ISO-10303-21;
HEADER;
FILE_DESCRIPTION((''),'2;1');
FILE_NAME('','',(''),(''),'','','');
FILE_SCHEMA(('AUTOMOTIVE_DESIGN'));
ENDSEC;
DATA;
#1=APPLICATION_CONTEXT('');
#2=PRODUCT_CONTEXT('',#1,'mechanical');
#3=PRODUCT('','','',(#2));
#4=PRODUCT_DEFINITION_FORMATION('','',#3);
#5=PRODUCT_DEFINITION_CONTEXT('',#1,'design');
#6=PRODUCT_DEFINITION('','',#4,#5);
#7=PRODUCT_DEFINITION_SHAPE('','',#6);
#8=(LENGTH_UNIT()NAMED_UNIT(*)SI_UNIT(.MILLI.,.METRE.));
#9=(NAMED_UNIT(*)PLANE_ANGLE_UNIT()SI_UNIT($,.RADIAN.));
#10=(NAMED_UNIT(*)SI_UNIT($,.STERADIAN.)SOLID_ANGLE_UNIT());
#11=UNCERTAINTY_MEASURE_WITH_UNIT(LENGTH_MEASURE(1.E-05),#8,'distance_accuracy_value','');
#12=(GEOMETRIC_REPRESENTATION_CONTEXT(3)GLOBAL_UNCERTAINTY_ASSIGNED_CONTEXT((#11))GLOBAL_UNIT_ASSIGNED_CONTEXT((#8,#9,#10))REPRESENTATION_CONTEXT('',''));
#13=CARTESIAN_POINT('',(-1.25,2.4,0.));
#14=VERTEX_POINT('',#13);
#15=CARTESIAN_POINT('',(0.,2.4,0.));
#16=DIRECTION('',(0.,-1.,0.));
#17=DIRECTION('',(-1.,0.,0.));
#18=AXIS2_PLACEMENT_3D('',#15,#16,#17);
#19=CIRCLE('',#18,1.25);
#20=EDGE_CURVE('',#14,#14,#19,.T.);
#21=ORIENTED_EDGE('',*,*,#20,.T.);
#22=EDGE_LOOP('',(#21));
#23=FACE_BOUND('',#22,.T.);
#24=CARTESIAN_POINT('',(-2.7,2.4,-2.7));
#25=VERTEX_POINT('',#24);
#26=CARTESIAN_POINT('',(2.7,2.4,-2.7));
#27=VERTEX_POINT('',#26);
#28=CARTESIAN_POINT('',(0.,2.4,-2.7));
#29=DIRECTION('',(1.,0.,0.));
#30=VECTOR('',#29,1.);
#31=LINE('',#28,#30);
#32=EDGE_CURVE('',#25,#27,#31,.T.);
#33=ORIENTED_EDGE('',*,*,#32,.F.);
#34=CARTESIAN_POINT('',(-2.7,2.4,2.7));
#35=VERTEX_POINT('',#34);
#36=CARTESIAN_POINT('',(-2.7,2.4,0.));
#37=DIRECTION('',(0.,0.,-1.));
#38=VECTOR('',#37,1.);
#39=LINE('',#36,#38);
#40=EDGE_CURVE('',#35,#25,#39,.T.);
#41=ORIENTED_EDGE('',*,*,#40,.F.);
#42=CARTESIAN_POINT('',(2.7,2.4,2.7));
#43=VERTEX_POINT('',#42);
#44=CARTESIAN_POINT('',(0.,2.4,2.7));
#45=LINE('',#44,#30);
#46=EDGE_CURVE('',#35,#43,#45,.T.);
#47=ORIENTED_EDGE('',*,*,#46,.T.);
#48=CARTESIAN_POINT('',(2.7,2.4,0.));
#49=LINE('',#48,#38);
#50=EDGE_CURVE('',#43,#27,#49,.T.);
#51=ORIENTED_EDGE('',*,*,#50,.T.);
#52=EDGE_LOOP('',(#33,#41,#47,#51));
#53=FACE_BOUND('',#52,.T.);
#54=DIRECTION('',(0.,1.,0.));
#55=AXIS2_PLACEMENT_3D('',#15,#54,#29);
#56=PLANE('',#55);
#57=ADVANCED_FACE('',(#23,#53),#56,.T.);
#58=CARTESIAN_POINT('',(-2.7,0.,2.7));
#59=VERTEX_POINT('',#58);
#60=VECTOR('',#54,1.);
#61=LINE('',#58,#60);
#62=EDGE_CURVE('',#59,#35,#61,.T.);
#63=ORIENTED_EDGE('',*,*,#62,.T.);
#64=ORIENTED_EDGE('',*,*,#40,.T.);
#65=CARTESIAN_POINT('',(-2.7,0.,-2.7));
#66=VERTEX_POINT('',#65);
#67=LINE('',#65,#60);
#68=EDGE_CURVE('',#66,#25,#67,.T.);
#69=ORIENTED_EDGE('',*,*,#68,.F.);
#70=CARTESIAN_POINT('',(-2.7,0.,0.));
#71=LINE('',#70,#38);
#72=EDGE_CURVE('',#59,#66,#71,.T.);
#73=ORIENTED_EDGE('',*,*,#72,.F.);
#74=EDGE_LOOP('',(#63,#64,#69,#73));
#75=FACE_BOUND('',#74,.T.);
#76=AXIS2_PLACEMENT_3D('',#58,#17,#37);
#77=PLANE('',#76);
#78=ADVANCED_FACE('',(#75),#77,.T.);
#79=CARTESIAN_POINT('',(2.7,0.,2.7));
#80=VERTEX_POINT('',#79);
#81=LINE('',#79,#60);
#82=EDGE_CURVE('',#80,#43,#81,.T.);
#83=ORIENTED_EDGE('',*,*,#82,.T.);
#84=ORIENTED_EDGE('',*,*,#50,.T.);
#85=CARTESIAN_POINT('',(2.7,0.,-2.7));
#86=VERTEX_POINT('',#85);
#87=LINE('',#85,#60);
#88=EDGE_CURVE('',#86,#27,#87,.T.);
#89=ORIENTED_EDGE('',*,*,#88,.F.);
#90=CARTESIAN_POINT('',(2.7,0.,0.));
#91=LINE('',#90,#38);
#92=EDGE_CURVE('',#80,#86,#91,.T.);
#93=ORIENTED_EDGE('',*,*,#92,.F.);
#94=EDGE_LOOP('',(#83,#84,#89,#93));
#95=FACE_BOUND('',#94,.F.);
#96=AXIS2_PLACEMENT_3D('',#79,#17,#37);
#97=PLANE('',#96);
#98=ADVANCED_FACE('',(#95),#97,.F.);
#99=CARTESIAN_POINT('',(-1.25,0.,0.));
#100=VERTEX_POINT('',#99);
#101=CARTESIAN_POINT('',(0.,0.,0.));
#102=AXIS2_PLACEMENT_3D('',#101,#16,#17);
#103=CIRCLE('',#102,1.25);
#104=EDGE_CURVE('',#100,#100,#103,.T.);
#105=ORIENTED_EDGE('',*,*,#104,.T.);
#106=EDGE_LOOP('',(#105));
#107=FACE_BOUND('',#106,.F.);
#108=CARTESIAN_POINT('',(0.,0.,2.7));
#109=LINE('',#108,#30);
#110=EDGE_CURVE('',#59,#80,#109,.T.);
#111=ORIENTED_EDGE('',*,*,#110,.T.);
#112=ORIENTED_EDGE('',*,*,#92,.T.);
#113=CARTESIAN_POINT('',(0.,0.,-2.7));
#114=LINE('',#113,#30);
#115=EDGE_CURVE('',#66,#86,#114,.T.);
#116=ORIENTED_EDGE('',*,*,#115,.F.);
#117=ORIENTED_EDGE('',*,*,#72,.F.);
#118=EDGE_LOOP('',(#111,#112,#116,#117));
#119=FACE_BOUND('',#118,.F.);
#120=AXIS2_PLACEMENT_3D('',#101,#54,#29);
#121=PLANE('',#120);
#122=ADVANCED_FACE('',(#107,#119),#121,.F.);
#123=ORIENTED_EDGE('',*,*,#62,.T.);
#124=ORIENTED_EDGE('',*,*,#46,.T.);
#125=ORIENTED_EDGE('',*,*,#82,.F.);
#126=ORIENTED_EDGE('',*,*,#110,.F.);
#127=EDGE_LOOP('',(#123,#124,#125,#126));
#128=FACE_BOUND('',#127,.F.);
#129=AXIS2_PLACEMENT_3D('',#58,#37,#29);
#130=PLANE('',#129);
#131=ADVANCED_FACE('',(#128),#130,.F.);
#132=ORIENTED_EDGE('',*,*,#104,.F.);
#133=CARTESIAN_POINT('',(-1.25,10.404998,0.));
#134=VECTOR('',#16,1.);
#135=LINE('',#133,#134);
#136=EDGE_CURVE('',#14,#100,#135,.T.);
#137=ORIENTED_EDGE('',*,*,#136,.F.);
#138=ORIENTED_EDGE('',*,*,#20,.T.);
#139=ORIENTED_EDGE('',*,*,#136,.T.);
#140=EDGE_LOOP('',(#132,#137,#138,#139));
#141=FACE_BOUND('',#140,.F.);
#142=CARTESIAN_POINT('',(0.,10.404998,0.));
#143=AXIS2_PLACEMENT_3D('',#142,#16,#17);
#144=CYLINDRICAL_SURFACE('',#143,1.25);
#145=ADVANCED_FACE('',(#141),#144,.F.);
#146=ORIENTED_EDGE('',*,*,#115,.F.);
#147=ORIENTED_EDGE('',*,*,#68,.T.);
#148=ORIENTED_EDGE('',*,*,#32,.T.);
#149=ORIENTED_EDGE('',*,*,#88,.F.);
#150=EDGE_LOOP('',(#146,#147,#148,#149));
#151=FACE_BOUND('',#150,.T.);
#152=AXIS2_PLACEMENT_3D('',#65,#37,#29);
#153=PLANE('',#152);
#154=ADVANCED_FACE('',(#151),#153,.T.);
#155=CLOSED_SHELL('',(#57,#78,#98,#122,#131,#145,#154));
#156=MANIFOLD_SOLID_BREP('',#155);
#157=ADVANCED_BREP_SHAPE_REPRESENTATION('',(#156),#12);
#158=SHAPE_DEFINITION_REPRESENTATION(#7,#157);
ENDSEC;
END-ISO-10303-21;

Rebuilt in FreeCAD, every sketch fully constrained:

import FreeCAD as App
import Part
import Sketcher

doc = App.newDocument("Part")
body = doc.addObject("PartDesign::Body", "Body")

# Sketch on XZ plane
sketch1 = body.newObject("Sketcher::SketchObject", "Sketch")
sketch1.AttachmentSupport = (doc.getObject("XZ_Plane"), [""])
sketch1.MapMode = "FlatFace"
sketch1.addGeometry([
    Part.LineSegment(App.Vector(-3, -3, 0), App.Vector(-3, 3, 0)),
    Part.LineSegment(App.Vector(-3, 3, 0), App.Vector(3, 3, 0)),
    Part.LineSegment(App.Vector(3, 3, 0), App.Vector(3, -3, 0)),
    Part.LineSegment(App.Vector(3, -3, 0), App.Vector(-3, -3, 0)),
], False)
sketch1.addConstraint([
    Sketcher.Constraint("Coincident", 0, 2, 1, 1),
    Sketcher.Constraint("Coincident", 1, 2, 2, 1),
    Sketcher.Constraint("Coincident", 2, 2, 3, 1),
    Sketcher.Constraint("Coincident", 3, 2, 0, 1),
    Sketcher.Constraint("Vertical", 0),
    Sketcher.Constraint("Horizontal", 1),
    Sketcher.Constraint("Vertical", 2),
    Sketcher.Constraint("Horizontal", 3),
    Sketcher.Constraint("Symmetric", 0, 2, 2, 2, -1, 1),
    Sketcher.Constraint("Equal", 3, 0),
    Sketcher.Constraint("DistanceX", 1, 1, 1, 2, 5.4),
])
pad1 = body.newObject("PartDesign::Pad", "Pad")
pad1.Profile = sketch1
pad1.Length = 2.4
pad1.Reversed = True

# Sketch on XZ plane
sketch2 = body.newObject("Sketcher::SketchObject", "Sketch001")
sketch2.AttachmentSupport = (doc.getObject("XZ_Plane"), [""])
sketch2.MapMode = "FlatFace"
sketch2.AttachmentOffset = App.Placement(App.Vector(0, 0, -2.4), App.Rotation())
sketch2.addGeometry(Part.Circle(App.Vector(0, 0, 0), App.Vector(0, 0, 1), 1.2), False)
sketch2.addConstraint([
    Sketcher.Constraint("Coincident", 0, 3, -1, 1),
    Sketcher.Constraint("Diameter", 0, 2.5),
])
doc.recompute()
hole = body.newObject("PartDesign::Hole", "Hole")
hole.Profile = sketch2
hole.ThreadType = "None"
hole.Diameter = 2.5
hole.DepthType = "ThroughAll"
hole.Reversed = True

doc.recompute()
